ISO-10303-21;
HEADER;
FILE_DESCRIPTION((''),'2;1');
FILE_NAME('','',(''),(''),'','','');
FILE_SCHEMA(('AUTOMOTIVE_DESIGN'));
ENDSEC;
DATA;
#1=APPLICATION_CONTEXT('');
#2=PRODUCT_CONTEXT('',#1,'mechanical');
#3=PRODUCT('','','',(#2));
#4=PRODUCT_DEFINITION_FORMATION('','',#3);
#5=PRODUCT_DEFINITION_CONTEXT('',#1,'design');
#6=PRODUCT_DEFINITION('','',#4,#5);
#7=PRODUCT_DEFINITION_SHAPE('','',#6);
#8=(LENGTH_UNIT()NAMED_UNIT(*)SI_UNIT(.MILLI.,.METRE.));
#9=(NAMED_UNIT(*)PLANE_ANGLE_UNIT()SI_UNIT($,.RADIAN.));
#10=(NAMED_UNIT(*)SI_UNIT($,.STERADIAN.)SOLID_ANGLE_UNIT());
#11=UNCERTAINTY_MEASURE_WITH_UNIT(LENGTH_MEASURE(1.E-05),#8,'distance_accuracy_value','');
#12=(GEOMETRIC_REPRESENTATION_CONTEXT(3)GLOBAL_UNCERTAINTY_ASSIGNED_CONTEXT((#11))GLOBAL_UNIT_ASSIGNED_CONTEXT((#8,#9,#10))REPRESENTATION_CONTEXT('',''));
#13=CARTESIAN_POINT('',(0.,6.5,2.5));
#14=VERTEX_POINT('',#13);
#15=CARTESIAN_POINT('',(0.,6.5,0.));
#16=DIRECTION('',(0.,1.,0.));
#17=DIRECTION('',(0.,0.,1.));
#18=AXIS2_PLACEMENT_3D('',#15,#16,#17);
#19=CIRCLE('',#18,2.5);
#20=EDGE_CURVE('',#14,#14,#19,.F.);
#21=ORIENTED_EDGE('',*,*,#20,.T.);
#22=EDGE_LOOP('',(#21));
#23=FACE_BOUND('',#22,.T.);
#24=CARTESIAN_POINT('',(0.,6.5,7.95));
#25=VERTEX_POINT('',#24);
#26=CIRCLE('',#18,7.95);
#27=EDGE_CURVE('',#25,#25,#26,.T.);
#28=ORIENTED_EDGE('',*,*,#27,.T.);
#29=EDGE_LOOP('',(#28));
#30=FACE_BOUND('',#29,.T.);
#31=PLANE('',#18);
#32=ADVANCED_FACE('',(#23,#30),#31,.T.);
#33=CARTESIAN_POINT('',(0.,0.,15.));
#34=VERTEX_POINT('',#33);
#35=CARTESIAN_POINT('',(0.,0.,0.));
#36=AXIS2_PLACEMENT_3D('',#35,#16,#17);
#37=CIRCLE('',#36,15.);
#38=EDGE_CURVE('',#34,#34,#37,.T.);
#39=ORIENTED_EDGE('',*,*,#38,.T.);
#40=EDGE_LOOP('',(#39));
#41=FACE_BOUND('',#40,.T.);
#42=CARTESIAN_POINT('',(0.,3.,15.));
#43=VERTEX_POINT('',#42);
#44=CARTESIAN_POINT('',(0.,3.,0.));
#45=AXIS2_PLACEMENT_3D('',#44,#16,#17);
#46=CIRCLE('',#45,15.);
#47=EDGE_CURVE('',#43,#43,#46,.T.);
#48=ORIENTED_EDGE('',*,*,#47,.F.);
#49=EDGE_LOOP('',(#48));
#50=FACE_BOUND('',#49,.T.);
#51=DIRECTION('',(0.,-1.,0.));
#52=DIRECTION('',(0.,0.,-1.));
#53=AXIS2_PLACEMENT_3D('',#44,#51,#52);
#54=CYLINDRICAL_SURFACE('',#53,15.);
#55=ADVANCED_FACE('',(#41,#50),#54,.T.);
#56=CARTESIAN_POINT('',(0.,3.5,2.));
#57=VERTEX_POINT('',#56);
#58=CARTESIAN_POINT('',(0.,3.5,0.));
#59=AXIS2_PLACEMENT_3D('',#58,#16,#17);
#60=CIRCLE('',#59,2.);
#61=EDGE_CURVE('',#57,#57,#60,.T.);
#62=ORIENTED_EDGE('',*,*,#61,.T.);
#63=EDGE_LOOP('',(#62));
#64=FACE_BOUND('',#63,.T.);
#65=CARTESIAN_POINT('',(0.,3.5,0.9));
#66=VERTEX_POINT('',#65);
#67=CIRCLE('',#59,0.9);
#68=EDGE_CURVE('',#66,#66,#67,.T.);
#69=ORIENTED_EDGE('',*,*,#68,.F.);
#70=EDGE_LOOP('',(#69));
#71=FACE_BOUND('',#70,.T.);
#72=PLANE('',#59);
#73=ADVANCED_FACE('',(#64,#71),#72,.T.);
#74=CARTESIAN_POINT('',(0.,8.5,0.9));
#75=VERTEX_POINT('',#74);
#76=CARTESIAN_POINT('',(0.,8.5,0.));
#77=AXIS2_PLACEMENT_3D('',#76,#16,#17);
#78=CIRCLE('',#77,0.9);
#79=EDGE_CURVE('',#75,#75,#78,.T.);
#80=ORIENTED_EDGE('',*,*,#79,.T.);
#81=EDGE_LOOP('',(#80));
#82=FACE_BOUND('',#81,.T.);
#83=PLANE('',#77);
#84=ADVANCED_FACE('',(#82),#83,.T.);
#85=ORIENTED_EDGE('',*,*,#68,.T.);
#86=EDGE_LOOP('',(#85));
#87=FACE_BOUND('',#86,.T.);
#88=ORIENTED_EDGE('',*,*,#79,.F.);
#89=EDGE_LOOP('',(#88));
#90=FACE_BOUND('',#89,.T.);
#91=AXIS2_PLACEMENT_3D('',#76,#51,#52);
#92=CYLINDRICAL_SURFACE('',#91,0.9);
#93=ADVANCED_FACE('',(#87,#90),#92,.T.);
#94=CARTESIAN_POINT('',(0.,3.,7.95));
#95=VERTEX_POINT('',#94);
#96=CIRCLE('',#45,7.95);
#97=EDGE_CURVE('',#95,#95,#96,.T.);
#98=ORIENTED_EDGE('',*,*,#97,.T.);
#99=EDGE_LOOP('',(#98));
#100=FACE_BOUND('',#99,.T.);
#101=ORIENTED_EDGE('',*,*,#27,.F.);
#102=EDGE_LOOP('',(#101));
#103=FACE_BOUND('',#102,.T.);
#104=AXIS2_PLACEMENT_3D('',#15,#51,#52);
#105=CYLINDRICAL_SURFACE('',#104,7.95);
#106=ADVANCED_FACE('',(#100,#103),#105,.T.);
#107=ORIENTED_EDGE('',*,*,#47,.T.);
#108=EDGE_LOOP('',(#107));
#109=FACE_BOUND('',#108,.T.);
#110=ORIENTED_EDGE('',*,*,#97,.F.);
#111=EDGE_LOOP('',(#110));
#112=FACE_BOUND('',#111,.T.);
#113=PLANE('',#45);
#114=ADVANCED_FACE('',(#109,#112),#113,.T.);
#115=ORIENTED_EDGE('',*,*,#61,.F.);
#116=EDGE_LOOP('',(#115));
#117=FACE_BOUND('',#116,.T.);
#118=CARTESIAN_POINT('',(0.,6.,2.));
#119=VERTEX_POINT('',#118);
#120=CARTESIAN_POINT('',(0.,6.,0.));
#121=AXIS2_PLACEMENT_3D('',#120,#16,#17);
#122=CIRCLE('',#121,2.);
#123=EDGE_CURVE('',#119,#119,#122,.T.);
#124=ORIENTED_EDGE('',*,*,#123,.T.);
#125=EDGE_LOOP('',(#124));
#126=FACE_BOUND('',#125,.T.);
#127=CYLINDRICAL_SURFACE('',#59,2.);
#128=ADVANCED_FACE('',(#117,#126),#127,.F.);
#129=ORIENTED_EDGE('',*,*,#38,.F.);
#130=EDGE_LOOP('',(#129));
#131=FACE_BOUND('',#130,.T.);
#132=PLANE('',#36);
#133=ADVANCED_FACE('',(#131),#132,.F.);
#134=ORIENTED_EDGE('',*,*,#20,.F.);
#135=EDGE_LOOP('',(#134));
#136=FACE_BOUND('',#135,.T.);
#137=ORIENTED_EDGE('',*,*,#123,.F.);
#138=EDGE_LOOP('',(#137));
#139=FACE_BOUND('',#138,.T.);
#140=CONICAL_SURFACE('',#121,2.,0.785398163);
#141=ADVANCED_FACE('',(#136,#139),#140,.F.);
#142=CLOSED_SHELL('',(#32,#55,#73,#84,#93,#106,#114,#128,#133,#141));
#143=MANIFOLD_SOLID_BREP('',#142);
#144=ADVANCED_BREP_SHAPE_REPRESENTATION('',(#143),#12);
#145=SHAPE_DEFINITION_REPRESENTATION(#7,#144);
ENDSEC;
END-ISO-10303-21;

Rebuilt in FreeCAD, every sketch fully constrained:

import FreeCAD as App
import Part
import Sketcher


def edges_at(feature, points):
    """Names of the edges that pass closest to the given points."""
    edges = feature.Shape.Edges
    near = lambda p: min(range(len(edges)), key=lambda i: edges[i].distToShape(Part.Vertex(*p))[0])
    return sorted({f"Edge{near(p) + 1}" for p in points})

doc = App.newDocument("Part")
body = doc.addObject("PartDesign::Body", "Body")

sketch1 = body.newObject("Sketcher::SketchObject", "Sketch")
sketch1.AttachmentSupport = (doc.getObject("XZ_Plane"), [""])
sketch1.MapMode = "FlatFace"
sketch1.addGeometry(Part.Circle(App.Vector(0, 0, 0), App.Vector(0, 0, 1), 15), False)
sketch1.addConstraint([
    Sketcher.Constraint("Coincident", 0, 3, -1, 1),
    Sketcher.Constraint("Diameter", 0, 30.0),
])
pad1 = body.newObject("PartDesign::Pad", "Pad")
pad1.Profile = sketch1
pad1.Length = 3
pad1.Reversed = True

sketch2 = body.newObject("Sketcher::SketchObject", "Sketch001")
sketch2.AttachmentSupport = (doc.getObject("XZ_Plane"), [""])
sketch2.MapMode = "FlatFace"
sketch2.AttachmentOffset = App.Placement(App.Vector(0, 0, -3), App.Rotation())
sketch2.addGeometry(Part.Circle(App.Vector(0, 0, 0), App.Vector(0, 0, 1), 7.95), False)
sketch2.addConstraint([
    Sketcher.Constraint("Coincident", 0, 3, -1, 1),
    Sketcher.Constraint("Diameter", 0, 15.9),
])
pad2 = body.newObject("PartDesign::Pad", "Pad001")
pad2.Profile = sketch2
pad2.Length = 3.5
pad2.Reversed = True

sketch3 = body.newObject("Sketcher::SketchObject", "Sketch002")
sketch3.AttachmentSupport = (doc.getObject("XZ_Plane"), [""])
sketch3.MapMode = "FlatFace"
sketch3.AttachmentOffset = App.Placement(App.Vector(0, 0, -6.5), App.Rotation())
sketch3.addGeometry(Part.Circle(App.Vector(0, 0, 0), App.Vector(0, 0, 1), 0.9), False)
sketch3.addConstraint([
    Sketcher.Constraint("Coincident", 0, 3, -1, 1),
    Sketcher.Constraint("Diameter", 0, 1.8),
])
pad3 = body.newObject("PartDesign::Pad", "Pad002")
pad3.Profile = sketch3
pad3.Length = 2
pad3.Reversed = True

sketch4 = body.newObject("Sketcher::SketchObject", "Sketch003")
sketch4.AttachmentSupport = (doc.getObject("XZ_Plane"), [""])
sketch4.MapMode = "FlatFace"
sketch4.AttachmentOffset = App.Placement(App.Vector(0, 0, -6.5), App.Rotation())
sketch4.addGeometry([
    Part.Circle(App.Vector(0, 0, 0), App.Vector(0, 0, 1), 2),
    Part.Circle(App.Vector(0, 0, 0), App.Vector(0, 0, 1), 0.9),
], False)
sketch4.addConstraint([
    Sketcher.Constraint("Coincident", 0, 3, -1, 1),
    Sketcher.Constraint("Coincident", 1, 3, -1, 1),
    Sketcher.Constraint("Diameter", 0, 4.0),
    Sketcher.Constraint("Diameter", 1, 1.8),
])
pocket1 = body.newObject("PartDesign::Pocket", "Pocket")
pocket1.Profile = sketch4
pocket1.Length = 3
pocket1.Reversed = True
doc.recompute()

chamfer = body.newObject("PartDesign::Chamfer", "Chamfer")
chamfer.Base = (pocket1, edges_at(pocket1, [(-2, 6.5, 0)]))
chamfer.Size = 0.5

doc.recompute()
